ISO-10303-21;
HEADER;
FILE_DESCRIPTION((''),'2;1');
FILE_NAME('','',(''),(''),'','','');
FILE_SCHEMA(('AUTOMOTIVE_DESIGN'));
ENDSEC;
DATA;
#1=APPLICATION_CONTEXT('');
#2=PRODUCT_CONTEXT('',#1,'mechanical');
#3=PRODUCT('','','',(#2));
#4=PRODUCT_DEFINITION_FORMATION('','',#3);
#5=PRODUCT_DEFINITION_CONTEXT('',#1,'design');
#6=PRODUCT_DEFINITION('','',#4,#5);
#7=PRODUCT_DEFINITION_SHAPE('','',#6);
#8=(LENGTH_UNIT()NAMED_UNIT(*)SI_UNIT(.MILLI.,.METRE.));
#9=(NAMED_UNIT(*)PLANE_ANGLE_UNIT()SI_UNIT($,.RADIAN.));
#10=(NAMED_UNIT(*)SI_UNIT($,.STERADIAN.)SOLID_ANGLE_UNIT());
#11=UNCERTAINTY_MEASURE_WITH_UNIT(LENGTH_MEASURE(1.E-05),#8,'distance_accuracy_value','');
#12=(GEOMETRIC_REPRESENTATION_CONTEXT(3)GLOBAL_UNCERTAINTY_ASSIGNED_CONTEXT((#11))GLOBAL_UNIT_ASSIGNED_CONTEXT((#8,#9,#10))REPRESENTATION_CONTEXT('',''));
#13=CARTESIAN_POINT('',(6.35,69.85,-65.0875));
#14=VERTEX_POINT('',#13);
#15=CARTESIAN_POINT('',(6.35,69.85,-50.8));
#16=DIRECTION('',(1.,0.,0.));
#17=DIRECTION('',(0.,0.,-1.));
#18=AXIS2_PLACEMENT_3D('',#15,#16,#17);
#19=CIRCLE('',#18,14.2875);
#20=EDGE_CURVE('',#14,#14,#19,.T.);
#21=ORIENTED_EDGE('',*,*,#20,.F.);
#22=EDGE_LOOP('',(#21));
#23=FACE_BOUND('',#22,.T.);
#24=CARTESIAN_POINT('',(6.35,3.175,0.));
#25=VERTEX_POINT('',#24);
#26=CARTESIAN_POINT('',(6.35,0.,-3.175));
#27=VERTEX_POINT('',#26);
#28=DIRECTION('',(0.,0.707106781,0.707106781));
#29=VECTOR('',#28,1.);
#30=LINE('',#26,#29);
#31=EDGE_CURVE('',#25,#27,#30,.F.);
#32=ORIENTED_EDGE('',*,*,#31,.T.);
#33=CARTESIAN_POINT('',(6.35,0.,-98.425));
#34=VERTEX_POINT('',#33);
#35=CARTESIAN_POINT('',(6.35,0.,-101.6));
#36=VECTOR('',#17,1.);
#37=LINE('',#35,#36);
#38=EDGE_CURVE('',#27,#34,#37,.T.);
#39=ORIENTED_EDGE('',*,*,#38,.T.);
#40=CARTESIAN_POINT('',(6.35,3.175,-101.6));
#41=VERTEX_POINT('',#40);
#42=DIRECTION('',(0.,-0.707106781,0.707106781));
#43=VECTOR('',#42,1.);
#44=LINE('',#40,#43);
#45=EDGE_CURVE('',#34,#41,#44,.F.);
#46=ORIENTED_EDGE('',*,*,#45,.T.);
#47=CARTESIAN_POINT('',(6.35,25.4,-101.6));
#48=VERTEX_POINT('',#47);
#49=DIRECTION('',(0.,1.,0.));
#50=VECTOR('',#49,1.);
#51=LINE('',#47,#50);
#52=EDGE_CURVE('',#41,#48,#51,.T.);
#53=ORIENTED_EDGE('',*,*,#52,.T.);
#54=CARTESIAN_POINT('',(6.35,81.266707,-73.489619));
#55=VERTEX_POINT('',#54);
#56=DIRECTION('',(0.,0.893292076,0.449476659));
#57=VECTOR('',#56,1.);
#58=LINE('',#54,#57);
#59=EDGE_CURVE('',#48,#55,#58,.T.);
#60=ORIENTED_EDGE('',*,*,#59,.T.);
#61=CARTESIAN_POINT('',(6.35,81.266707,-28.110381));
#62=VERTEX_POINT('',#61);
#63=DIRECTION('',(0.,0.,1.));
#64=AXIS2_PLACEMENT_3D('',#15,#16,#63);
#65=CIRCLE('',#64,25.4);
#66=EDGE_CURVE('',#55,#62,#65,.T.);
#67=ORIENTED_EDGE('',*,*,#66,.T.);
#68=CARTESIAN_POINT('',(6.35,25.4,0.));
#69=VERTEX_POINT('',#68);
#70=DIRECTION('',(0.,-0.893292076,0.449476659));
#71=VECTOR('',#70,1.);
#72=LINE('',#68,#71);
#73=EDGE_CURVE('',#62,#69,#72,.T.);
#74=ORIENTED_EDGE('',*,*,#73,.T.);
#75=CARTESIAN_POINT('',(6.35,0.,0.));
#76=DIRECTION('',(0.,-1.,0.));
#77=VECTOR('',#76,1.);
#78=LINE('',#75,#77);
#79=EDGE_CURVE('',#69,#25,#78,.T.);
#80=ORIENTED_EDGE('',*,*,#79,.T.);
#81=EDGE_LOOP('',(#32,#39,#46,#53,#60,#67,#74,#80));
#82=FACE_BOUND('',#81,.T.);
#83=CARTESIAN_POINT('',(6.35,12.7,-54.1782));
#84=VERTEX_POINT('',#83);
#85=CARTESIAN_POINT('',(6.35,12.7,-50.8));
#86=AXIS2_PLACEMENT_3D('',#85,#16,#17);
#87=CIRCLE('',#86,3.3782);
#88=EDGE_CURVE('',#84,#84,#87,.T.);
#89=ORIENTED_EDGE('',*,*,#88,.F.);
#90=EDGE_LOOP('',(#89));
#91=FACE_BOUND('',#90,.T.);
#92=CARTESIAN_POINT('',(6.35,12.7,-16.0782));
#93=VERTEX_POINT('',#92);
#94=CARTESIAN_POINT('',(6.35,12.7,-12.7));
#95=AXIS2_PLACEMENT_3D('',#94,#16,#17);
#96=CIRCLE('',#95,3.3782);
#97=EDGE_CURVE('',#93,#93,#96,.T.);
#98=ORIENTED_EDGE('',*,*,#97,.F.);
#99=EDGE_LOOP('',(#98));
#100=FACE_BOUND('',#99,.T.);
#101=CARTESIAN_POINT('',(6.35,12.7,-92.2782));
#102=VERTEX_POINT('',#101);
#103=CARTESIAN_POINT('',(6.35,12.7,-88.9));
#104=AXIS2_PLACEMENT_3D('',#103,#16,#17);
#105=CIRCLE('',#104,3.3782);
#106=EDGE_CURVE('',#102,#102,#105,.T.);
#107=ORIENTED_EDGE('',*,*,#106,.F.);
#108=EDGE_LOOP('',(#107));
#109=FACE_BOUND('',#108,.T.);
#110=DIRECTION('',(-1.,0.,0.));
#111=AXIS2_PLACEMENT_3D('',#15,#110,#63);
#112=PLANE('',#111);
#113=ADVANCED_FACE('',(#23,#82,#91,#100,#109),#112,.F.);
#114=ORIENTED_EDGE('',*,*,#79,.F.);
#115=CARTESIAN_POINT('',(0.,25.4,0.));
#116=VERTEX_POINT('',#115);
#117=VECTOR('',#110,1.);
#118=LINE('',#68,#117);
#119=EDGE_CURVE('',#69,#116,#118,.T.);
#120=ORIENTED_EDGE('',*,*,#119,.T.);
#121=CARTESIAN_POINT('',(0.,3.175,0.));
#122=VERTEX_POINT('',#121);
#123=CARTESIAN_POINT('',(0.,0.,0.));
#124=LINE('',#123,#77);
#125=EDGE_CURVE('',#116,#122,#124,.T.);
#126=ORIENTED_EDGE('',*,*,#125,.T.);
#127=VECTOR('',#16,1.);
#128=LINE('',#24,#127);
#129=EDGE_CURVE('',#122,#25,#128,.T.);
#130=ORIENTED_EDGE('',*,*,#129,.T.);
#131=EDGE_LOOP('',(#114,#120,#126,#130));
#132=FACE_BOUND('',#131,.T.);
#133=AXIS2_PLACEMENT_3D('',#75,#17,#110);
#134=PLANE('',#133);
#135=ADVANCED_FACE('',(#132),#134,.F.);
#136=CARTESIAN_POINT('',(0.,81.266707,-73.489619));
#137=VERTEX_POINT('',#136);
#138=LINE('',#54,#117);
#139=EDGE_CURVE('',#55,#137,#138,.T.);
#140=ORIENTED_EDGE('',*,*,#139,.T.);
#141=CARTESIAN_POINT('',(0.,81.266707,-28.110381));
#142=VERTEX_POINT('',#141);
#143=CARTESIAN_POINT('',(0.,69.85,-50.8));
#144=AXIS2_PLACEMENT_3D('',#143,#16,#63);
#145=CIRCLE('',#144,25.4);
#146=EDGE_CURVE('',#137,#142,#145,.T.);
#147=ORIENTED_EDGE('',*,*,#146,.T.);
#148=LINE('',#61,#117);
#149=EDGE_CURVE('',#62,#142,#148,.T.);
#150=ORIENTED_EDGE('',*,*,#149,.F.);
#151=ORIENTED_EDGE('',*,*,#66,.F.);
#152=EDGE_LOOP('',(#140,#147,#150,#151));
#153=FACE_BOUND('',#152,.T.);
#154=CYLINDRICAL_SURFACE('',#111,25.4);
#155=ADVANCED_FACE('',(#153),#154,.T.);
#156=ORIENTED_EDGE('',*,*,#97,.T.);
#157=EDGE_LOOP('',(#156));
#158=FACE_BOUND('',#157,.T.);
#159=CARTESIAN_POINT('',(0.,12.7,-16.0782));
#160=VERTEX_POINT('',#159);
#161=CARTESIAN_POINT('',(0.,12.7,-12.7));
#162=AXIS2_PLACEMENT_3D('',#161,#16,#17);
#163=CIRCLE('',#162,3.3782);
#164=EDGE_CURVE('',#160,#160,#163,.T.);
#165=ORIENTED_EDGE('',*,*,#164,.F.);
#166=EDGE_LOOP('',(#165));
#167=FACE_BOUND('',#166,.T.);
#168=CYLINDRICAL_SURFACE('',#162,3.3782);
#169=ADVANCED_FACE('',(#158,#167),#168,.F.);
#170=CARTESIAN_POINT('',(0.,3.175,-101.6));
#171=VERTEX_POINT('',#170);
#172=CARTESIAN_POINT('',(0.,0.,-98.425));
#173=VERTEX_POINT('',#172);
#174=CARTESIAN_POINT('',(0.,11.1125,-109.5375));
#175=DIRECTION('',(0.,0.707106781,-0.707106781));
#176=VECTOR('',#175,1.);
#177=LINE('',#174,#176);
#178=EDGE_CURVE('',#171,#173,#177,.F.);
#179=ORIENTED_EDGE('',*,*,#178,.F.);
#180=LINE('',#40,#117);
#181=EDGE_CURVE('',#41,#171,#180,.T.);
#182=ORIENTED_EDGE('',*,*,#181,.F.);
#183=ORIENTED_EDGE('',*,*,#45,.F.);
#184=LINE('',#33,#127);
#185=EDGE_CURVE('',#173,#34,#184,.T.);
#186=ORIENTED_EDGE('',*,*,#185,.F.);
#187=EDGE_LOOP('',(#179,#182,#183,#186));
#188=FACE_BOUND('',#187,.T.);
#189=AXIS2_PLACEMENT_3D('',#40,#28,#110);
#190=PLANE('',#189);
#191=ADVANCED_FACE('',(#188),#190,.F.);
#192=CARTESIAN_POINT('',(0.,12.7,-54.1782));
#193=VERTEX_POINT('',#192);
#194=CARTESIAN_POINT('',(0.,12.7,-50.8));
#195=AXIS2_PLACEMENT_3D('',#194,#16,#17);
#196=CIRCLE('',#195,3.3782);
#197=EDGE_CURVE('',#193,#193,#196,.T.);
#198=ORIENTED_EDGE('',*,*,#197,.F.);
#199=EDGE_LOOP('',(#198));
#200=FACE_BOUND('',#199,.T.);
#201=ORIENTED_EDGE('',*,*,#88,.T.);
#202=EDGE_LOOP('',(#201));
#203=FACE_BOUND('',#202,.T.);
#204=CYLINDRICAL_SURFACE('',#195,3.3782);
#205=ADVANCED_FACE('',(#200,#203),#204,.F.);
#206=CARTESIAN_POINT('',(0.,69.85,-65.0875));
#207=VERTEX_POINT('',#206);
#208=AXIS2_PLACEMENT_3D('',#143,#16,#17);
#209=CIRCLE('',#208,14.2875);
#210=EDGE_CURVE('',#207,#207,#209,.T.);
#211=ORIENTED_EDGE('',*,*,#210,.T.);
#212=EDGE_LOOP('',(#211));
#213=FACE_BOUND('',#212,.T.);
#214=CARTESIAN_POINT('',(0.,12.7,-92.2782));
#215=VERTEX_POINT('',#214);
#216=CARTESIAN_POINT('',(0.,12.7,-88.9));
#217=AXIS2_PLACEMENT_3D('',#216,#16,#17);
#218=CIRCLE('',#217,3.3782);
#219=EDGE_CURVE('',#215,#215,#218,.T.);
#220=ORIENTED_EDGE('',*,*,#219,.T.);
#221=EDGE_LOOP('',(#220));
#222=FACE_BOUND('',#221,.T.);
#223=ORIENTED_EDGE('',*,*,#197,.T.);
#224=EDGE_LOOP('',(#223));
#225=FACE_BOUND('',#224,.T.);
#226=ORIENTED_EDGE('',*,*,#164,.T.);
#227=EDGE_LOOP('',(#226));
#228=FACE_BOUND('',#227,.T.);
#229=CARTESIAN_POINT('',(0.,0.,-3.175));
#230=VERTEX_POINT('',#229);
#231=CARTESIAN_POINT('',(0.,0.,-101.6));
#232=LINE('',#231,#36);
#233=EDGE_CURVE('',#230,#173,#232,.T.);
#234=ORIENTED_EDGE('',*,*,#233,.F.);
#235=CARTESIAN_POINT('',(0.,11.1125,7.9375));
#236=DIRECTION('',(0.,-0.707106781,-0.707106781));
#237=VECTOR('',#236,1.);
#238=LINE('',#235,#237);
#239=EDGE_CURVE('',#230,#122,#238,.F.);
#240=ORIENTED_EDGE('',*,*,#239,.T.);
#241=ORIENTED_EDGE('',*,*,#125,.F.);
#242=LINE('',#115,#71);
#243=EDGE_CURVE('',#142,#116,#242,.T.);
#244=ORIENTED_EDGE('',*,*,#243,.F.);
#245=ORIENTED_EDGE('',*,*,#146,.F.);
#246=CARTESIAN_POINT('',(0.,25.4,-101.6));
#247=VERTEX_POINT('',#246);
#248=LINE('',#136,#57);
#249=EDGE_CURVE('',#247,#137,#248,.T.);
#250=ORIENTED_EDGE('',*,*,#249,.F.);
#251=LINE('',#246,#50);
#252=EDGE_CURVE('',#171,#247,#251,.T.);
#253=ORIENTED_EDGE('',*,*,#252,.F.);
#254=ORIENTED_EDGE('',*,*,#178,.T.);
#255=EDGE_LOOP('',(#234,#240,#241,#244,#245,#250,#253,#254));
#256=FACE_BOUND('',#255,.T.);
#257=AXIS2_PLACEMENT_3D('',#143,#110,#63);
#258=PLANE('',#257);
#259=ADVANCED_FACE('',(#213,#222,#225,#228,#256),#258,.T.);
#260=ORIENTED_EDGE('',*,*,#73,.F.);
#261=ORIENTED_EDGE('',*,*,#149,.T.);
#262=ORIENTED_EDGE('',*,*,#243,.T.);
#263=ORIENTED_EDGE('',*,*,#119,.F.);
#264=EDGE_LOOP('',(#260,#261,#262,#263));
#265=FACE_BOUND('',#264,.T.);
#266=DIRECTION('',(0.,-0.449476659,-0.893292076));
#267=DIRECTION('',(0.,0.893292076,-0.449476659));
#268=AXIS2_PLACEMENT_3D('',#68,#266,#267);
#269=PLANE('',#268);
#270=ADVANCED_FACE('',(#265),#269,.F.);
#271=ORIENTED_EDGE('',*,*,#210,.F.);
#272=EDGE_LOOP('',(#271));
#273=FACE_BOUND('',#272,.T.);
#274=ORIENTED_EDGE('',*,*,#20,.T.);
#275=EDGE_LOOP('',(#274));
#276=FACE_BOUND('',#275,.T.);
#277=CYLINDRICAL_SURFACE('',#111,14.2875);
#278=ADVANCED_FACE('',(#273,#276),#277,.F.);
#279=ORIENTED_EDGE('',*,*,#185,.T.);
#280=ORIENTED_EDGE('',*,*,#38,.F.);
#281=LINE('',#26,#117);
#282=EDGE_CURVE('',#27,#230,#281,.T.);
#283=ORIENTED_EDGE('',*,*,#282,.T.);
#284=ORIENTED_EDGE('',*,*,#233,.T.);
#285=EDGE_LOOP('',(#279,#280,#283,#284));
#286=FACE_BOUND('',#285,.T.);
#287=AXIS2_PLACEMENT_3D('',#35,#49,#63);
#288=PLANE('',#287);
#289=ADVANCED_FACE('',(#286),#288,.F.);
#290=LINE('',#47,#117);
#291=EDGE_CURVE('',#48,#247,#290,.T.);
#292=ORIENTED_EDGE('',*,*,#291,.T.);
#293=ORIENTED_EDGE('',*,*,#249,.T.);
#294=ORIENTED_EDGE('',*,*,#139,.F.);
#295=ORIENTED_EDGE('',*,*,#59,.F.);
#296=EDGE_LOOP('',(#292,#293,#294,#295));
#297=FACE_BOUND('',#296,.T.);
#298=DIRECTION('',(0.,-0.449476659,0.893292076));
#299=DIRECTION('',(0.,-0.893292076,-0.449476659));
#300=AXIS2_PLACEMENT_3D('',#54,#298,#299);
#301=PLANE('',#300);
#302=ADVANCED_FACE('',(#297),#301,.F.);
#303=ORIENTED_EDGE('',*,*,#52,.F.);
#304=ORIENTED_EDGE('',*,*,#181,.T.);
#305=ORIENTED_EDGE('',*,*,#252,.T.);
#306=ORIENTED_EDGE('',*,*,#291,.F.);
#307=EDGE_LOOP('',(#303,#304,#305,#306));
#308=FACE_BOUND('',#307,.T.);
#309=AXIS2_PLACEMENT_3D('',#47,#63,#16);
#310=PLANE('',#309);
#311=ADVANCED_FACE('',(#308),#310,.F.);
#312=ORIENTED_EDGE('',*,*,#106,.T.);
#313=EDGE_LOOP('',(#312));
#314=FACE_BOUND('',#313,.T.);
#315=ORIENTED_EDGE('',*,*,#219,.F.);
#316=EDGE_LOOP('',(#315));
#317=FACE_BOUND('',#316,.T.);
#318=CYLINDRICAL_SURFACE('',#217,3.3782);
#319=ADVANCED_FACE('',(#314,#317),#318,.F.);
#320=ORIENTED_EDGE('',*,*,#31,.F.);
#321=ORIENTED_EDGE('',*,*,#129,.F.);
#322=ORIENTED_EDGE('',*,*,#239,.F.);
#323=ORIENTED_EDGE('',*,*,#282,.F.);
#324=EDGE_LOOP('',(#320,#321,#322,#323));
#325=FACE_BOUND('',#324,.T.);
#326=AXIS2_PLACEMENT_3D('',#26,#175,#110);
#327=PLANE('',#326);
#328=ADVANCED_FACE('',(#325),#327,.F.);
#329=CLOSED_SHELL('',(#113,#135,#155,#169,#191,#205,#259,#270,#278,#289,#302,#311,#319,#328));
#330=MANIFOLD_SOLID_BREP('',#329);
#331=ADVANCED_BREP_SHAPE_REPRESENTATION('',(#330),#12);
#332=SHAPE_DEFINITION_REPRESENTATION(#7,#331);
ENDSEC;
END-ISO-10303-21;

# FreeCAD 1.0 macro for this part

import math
import FreeCAD as App
import Part
import Sketcher
from FreeCAD import Vector
Q = App.Units.Quantity


def edges_at(feature, points):
    """Names of the edges that pass closest to the given points."""
    edges = feature.Shape.Edges
    near = lambda p: min(range(len(edges)), key=lambda i: edges[i].distToShape(Part.Vertex(*p))[0])
    return sorted({f"Edge{near(p) + 1}" for p in points})

doc = App.newDocument("Part")
body = doc.addObject("PartDesign::Body", "Body")

# Sketch on YZ plane
sketch1 = doc.addObject("Sketcher::SketchObject", "Sketch")
body.addObject(sketch1)
sketch1.AttachmentSupport = (doc.YZ_Plane, [""])
sketch1.MapMode = "FlatFace"
sketch1.addGeometry([
    Part.LineSegment(Vector(25, 0, 0), Vector(0, 0, 0)),  # 0
    Part.LineSegment(Vector(0, 0, 0), Vector(0, -102, 0)),  # 1
    Part.LineSegment(Vector(0, -102, 0), Vector(25, -102, 0)),  # 2
    Part.LineSegment(Vector(25, -102, 0), Vector(81, -73, 0)),  # 3
    Part.ArcOfCircle(Part.Circle(Vector(70, -51, 0), Vector(0, 0, 1), 25), math.radians(-63), math.radians(63)),  # 4
    Part.LineSegment(Vector(81, -28, 0), Vector(25, 0, 0)),  # 5
    Part.Circle(Vector(70, -51, 0), Vector(0, 0, 1), 14),  # 6
], False)
sketch1.addConstraint([
    Sketcher.Constraint("Coincident", 0, 2, 1, 1),
    Sketcher.Constraint("Coincident", 1, 2, 2, 1),
    Sketcher.Constraint("Coincident", 2, 2, 3, 1),
    Sketcher.Constraint("Tangent", 3, 2, 4, 1),
    Sketcher.Constraint("Tangent", 4, 2, 5, 1),
    Sketcher.Constraint("Coincident", 5, 2, 0, 1),
    Sketcher.Constraint("Horizontal", 0),
    Sketcher.Constraint("Vertical", 1),
    Sketcher.Constraint("Horizontal", 2),
    Sketcher.Constraint("Coincident", 0, 2, -1, 1),
    Sketcher.Constraint("Coincident", 6, 3, 4, 3),
    Sketcher.Constraint("Vertical", 3, 2, 4, 2),
    Sketcher.Constraint("Vertical", 2, 2, 5, 2),
    Sketcher.Constraint("Radius", 4, Q("1 in")),
    Sketcher.Constraint("DistanceX", 0, 2, 0, 1, Q("1 in")),
    Sketcher.Constraint("DistanceY", 1, 2, 1, 1, Q("4 in")),
    Sketcher.Constraint("Diameter", 6, Q("1.125 in")),
    Sketcher.Constraint("DistanceX", -1, 1, 4, 3, Q("2.75 in")),
])
pad1 = doc.addObject("PartDesign::Pad", "Pad")
body.addObject(pad1)
pad1.Profile = sketch1
pad1.Length = Q("0.25 in")

# Sketch on YZ plane
sketch2 = doc.addObject("Sketcher::SketchObject", "Sketch001")
body.addObject(sketch2)
sketch2.AttachmentSupport = (doc.YZ_Plane, [""])
sketch2.MapMode = "FlatFace"
sketch2.AttachmentOffset = App.Placement(Vector(0, 0, 0.25 * 25.4), App.Rotation())
sketch2.addGeometry([
    Part.Circle(Vector(12.7, -12.7, 0), Vector(0, 0, 1), 3.4),
    Part.Circle(Vector(12.7, -50.8, 0), Vector(0, 0, 1), 3.4),
    Part.Circle(Vector(12.7, -88.9, 0), Vector(0, 0, 1), 3.4),
], False)
sketch2.addConstraint([
    Sketcher.Constraint("Equal", 0, 1),
    Sketcher.Constraint("Equal", 1, 2),
    Sketcher.Constraint("Vertical", 0, 3, 1, 3),
    Sketcher.Constraint("Vertical", 1, 3, 2, 3),
    Sketcher.Constraint("Diameter", 0, Q("0.266 in")),
    Sketcher.Constraint("DistanceY", 1, 3, -1, 1, Q("2 in")),
    Sketcher.Constraint("DistanceY", 2, 3, 0, 3, Q("3 in")),
    Sketcher.Constraint("DistanceX", -1, 1, 0, 3, Q("0.5 in")),
    Sketcher.Constraint("DistanceY", 0, 3, -1, 1, Q("0.5 in")),
])
pocket1 = doc.addObject("PartDesign::Pocket", "Pocket")
body.addObject(pocket1)
pocket1.Profile = sketch2
pocket1.Type = "ThroughAll"
doc.recompute()

chamfer = doc.addObject("PartDesign::Chamfer", "Chamfer")
body.addObject(chamfer)
chamfer.Base = (pocket1, edges_at(pocket1, [(3.175, 0, 0), (3.175, 0, -101.6)]))
chamfer.Size = Q("0.125 in")

doc.recompute()
